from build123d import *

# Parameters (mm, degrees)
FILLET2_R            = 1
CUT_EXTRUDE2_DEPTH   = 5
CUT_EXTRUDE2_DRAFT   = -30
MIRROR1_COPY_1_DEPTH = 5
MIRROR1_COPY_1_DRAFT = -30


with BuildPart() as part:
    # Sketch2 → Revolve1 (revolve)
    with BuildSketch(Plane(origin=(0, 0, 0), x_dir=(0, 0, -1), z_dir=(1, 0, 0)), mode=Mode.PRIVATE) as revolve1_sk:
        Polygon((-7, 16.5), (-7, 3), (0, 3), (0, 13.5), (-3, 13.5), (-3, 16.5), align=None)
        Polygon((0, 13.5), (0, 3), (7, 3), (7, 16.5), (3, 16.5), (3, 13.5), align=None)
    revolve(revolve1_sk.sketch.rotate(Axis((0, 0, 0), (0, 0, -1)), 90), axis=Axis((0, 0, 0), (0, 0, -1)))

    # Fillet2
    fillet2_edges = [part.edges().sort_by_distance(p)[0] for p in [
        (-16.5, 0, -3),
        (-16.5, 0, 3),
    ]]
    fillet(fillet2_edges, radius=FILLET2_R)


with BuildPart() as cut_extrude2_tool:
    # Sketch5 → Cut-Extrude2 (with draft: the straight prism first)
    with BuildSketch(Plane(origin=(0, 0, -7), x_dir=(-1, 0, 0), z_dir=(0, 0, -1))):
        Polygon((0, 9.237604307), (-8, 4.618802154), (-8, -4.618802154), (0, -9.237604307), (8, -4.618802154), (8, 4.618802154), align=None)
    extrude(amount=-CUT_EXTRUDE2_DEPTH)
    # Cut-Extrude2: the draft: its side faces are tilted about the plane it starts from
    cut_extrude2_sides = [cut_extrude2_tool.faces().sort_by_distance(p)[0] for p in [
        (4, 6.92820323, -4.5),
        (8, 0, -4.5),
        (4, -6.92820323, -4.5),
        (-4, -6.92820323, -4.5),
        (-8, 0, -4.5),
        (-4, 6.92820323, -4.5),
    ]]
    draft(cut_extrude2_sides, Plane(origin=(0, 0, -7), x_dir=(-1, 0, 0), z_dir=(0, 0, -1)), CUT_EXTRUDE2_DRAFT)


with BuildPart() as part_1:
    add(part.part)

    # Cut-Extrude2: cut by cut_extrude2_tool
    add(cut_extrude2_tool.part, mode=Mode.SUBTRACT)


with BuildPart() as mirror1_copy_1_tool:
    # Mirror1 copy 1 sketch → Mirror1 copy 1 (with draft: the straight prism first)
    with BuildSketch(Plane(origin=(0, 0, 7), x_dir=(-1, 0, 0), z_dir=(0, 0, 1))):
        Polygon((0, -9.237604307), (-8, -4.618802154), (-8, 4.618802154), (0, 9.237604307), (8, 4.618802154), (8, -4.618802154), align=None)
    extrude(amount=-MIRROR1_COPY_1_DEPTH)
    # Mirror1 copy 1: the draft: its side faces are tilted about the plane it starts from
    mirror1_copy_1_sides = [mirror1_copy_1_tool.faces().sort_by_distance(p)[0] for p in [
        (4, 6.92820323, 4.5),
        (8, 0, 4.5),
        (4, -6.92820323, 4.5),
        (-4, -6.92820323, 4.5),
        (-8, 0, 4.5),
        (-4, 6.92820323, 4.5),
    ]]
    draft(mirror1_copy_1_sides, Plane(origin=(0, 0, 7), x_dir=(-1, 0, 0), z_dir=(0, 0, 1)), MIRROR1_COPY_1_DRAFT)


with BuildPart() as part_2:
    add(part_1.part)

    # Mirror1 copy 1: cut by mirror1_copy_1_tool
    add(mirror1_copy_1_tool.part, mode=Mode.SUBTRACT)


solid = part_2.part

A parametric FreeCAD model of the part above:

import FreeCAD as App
import Part
import Sketcher
from FreeCAD import Vector
Q = App.Units.Quantity


def edges_at(feature, points):
    """Names of the edges that pass closest to the given points."""
    edges = feature.Shape.Edges
    near = lambda p: min(range(len(edges)), key=lambda i: edges[i].distToShape(Part.Vertex(*p))[0])
    return sorted({f"Edge{near(p) + 1}" for p in points})


def faces_at(feature, points):
    """Names of the faces that lie closest to the given points."""
    faces = feature.Shape.Faces
    near = lambda p: min(range(len(faces)), key=lambda i: faces[i].distToShape(Part.Vertex(*p))[0])
    return sorted({f"Face{near(p) + 1}" for p in points})


def add_polygon(sketch, points):
    """Adds a closed chain of lines whose ends are joined by coincident constraints."""
    first, n = sketch.GeometryCount, len(points)
    for a, b in zip(points, points[1:] + points[:1]):
        sketch.addGeometry(Part.LineSegment(App.Vector(*a, 0), App.Vector(*b, 0)), False)
    for i in range(n):
        sketch.addConstraint(Sketcher.Constraint("Coincident", first + i, 2, first + (i + 1) % n, 1))

doc = App.newDocument("Part")
body = doc.addObject("PartDesign::Body", "Body")

# Sketch on YZ plane
sketch1 = doc.addObject("Sketcher::SketchObject", "Sketch")
body.addObject(sketch1)
sketch1.AttachmentSupport = (doc.YZ_Plane, [""])
sketch1.MapMode = "FlatFace"
add_polygon(sketch1, [(16.5, 7), (3, 7), (3, -7), (16.5, -7), (16.5, -3), (13.5, -3), (13.5, 3), (16.5, 3)])  # lines 0-7
sketch1.addConstraint([
    Sketcher.Constraint("Horizontal", 0),
    Sketcher.Constraint("Vertical", 1),
    Sketcher.Constraint("Horizontal", 2),
    Sketcher.Constraint("Vertical", 3),
    Sketcher.Constraint("Horizontal", 4),
    Sketcher.Constraint("Vertical", 5),
    Sketcher.Constraint("Horizontal", 6),
    Sketcher.Constraint("Vertical", 7),
    Sketcher.Constraint("Symmetric", 3, 2, 6, 2, -1),
    Sketcher.Constraint("Equal", 3, 7),
    Sketcher.Constraint("DistanceX", 4, 2, 4, 1, Q("3 mm")),
    Sketcher.Constraint("DistanceY", 1, 2, 1, 1, Q("14 mm")),
    Sketcher.Constraint("DistanceY", 3, 1, 3, 2, Q("4 mm")),
    Sketcher.Constraint("DistanceX", 0, 2, 0, 1, Q("13.5 mm")),
    Sketcher.Constraint("DistanceX", -1, 1, 0, 2, Q("3 mm")),
])
revolution = doc.addObject("PartDesign::Revolution", "Revolution")
body.addObject(revolution)
revolution.Profile = sketch1
revolution.ReferenceAxis = (sketch1, ["V_Axis"])
revolution.Angle = 360
doc.recompute()

fillet = doc.addObject("PartDesign::Fillet", "Fillet")
body.addObject(fillet)
fillet.Base = (revolution, edges_at(revolution, [(-16.5, 0, -3), (-16.5, 0, 3)]))
fillet.Radius = 1
body2 = doc.addObject("PartDesign::Body", "Body001")

# Sketch on XY plane
sketch2 = doc.addObject("Sketcher::SketchObject", "Sketch001")
body2.addObject(sketch2)
sketch2.AttachmentSupport = (doc.getObject("XY_Plane001"), [""])
sketch2.MapMode = "FlatFace"
sketch2.AttachmentOffset = App.Placement(Vector(0, 0, -7), App.Rotation())
add_polygon(sketch2, [(0, 9), (8, 5), (8, -5), (0, -9), (-8, -5), (-8, 5)])  # lines 0-5
sketch2.addConstraint([
    Sketcher.Constraint("Vertical", 1),
    Sketcher.Constraint("Vertical", 4),
    Sketcher.Constraint("Symmetric", 0, 2, 3, 2, -1, 1),
    Sketcher.Constraint("Symmetric", 2, 2, 5, 2, -1, 1),
    Sketcher.Constraint("PointOnObject", 2, 2, -2),
    Sketcher.Constraint("Parallel", 2, 5),
    Sketcher.Constraint("Horizontal", 1, 2, 3, 2),
    Sketcher.Constraint("Angle", 0, Q("-30 deg")),
    Sketcher.Constraint("DistanceX", -1, 1, 0, 2, Q("8 mm")),
    Sketcher.Constraint("DistanceY", 1, 2, 1, 1, Q("9.237604 mm")),
])
pad1 = doc.addObject("PartDesign::Pad", "Pad")
body2.addObject(pad1)
pad1.Profile = sketch2
pad1.Length = 5
doc.recompute()

datumplane = doc.addObject("PartDesign::Plane", "DatumPlane")
body2.addObject(datumplane)
datumplane.AttachmentSupport = (doc.getObject("XY_Plane001"), [""])
datumplane.MapMode = "FlatFace"
datumplane.AttachmentOffset = App.Placement(Vector(0, 0, -7), App.Rotation())
draft = doc.addObject("PartDesign::Draft", "Draft")
body2.addObject(draft)
draft.Base = (pad1, faces_at(pad1, [
    (4, 6.928, -4.5),
    (8, 0, -4.5),
    (4, -6.928, -4.5),
    (-4, -6.928, -4.5),
    (-8, 0, -4.5),
    (-4, 6.928, -4.5),
]))
draft.NeutralPlane = (datumplane, [""])
draft.Angle = 30
draft.Reversed = False
doc.recompute()

boolean = doc.addObject("PartDesign::Boolean", "Boolean")
body.addObject(boolean)
boolean.Type = "Cut"
boolean.addObjects([body2])
body3 = doc.addObject("PartDesign::Body", "Body002")

# Sketch on XY plane
sketch3 = doc.addObject("Sketcher::SketchObject", "Sketch002")
body3.addObject(sketch3)
sketch3.AttachmentSupport = (doc.getObject("XY_Plane002"), [""])
sketch3.MapMode = "FlatFace"
sketch3.AttachmentOffset = App.Placement(Vector(0, 0, 7), App.Rotation())
add_polygon(sketch3, [(8, 5), (0, 9), (-8, 5), (-8, -5), (0, -9), (8, -5)])  # lines 0-5
sketch3.addConstraint([
    Sketcher.Constraint("Vertical", 2),
    Sketcher.Constraint("Vertical", 5),
    Sketcher.Constraint("Symmetric", 0, 2, 3, 2, -1, 1),
    Sketcher.Constraint("Symmetric", 1, 2, 4, 2, -1, 1),
    Sketcher.Constraint("PointOnObject", 0, 2, -2),
    Sketcher.Constraint("Parallel", 0, 3),
    Sketcher.Constraint("Horizontal", 2, 2, 4, 2),
    Sketcher.Constraint("Angle", 0, Q("150 deg")),
    Sketcher.Constraint("DistanceX", 1, 2, -1, 1, Q("8 mm")),
    Sketcher.Constraint("DistanceY", 2, 2, 2, 1, Q("9.237604 mm")),
])
pad2 = doc.addObject("PartDesign::Pad", "Pad001")
body3.addObject(pad2)
pad2.Profile = sketch3
pad2.Length = 5
pad2.Reversed = True
doc.recompute()

datumplane2 = doc.addObject("PartDesign::Plane", "DatumPlane001")
body3.addObject(datumplane2)
datumplane2.AttachmentSupport = (doc.getObject("XY_Plane002"), [""])
datumplane2.MapMode = "FlatFace"
datumplane2.AttachmentOffset = App.Placement(Vector(0, 0, 7), App.Rotation())
draft2 = doc.addObject("PartDesign::Draft", "Draft001")
body3.addObject(draft2)
draft2.Base = (pad2, faces_at(pad2, [
    (4, 6.928, 4.5),
    (8, 0, 4.5),
    (4, -6.928, 4.5),
    (-4, -6.928, 4.5),
    (-8, 0, 4.5),
    (-4, 6.928, 4.5),
]))
draft2.NeutralPlane = (datumplane2, [""])
draft2.Angle = 30
draft2.Reversed = True
doc.recompute()

boolean2 = doc.addObject("PartDesign::Boolean", "Boolean001")
body.addObject(boolean2)
boolean2.Type = "Cut"
boolean2.addObjects([body3])

doc.recompute()
